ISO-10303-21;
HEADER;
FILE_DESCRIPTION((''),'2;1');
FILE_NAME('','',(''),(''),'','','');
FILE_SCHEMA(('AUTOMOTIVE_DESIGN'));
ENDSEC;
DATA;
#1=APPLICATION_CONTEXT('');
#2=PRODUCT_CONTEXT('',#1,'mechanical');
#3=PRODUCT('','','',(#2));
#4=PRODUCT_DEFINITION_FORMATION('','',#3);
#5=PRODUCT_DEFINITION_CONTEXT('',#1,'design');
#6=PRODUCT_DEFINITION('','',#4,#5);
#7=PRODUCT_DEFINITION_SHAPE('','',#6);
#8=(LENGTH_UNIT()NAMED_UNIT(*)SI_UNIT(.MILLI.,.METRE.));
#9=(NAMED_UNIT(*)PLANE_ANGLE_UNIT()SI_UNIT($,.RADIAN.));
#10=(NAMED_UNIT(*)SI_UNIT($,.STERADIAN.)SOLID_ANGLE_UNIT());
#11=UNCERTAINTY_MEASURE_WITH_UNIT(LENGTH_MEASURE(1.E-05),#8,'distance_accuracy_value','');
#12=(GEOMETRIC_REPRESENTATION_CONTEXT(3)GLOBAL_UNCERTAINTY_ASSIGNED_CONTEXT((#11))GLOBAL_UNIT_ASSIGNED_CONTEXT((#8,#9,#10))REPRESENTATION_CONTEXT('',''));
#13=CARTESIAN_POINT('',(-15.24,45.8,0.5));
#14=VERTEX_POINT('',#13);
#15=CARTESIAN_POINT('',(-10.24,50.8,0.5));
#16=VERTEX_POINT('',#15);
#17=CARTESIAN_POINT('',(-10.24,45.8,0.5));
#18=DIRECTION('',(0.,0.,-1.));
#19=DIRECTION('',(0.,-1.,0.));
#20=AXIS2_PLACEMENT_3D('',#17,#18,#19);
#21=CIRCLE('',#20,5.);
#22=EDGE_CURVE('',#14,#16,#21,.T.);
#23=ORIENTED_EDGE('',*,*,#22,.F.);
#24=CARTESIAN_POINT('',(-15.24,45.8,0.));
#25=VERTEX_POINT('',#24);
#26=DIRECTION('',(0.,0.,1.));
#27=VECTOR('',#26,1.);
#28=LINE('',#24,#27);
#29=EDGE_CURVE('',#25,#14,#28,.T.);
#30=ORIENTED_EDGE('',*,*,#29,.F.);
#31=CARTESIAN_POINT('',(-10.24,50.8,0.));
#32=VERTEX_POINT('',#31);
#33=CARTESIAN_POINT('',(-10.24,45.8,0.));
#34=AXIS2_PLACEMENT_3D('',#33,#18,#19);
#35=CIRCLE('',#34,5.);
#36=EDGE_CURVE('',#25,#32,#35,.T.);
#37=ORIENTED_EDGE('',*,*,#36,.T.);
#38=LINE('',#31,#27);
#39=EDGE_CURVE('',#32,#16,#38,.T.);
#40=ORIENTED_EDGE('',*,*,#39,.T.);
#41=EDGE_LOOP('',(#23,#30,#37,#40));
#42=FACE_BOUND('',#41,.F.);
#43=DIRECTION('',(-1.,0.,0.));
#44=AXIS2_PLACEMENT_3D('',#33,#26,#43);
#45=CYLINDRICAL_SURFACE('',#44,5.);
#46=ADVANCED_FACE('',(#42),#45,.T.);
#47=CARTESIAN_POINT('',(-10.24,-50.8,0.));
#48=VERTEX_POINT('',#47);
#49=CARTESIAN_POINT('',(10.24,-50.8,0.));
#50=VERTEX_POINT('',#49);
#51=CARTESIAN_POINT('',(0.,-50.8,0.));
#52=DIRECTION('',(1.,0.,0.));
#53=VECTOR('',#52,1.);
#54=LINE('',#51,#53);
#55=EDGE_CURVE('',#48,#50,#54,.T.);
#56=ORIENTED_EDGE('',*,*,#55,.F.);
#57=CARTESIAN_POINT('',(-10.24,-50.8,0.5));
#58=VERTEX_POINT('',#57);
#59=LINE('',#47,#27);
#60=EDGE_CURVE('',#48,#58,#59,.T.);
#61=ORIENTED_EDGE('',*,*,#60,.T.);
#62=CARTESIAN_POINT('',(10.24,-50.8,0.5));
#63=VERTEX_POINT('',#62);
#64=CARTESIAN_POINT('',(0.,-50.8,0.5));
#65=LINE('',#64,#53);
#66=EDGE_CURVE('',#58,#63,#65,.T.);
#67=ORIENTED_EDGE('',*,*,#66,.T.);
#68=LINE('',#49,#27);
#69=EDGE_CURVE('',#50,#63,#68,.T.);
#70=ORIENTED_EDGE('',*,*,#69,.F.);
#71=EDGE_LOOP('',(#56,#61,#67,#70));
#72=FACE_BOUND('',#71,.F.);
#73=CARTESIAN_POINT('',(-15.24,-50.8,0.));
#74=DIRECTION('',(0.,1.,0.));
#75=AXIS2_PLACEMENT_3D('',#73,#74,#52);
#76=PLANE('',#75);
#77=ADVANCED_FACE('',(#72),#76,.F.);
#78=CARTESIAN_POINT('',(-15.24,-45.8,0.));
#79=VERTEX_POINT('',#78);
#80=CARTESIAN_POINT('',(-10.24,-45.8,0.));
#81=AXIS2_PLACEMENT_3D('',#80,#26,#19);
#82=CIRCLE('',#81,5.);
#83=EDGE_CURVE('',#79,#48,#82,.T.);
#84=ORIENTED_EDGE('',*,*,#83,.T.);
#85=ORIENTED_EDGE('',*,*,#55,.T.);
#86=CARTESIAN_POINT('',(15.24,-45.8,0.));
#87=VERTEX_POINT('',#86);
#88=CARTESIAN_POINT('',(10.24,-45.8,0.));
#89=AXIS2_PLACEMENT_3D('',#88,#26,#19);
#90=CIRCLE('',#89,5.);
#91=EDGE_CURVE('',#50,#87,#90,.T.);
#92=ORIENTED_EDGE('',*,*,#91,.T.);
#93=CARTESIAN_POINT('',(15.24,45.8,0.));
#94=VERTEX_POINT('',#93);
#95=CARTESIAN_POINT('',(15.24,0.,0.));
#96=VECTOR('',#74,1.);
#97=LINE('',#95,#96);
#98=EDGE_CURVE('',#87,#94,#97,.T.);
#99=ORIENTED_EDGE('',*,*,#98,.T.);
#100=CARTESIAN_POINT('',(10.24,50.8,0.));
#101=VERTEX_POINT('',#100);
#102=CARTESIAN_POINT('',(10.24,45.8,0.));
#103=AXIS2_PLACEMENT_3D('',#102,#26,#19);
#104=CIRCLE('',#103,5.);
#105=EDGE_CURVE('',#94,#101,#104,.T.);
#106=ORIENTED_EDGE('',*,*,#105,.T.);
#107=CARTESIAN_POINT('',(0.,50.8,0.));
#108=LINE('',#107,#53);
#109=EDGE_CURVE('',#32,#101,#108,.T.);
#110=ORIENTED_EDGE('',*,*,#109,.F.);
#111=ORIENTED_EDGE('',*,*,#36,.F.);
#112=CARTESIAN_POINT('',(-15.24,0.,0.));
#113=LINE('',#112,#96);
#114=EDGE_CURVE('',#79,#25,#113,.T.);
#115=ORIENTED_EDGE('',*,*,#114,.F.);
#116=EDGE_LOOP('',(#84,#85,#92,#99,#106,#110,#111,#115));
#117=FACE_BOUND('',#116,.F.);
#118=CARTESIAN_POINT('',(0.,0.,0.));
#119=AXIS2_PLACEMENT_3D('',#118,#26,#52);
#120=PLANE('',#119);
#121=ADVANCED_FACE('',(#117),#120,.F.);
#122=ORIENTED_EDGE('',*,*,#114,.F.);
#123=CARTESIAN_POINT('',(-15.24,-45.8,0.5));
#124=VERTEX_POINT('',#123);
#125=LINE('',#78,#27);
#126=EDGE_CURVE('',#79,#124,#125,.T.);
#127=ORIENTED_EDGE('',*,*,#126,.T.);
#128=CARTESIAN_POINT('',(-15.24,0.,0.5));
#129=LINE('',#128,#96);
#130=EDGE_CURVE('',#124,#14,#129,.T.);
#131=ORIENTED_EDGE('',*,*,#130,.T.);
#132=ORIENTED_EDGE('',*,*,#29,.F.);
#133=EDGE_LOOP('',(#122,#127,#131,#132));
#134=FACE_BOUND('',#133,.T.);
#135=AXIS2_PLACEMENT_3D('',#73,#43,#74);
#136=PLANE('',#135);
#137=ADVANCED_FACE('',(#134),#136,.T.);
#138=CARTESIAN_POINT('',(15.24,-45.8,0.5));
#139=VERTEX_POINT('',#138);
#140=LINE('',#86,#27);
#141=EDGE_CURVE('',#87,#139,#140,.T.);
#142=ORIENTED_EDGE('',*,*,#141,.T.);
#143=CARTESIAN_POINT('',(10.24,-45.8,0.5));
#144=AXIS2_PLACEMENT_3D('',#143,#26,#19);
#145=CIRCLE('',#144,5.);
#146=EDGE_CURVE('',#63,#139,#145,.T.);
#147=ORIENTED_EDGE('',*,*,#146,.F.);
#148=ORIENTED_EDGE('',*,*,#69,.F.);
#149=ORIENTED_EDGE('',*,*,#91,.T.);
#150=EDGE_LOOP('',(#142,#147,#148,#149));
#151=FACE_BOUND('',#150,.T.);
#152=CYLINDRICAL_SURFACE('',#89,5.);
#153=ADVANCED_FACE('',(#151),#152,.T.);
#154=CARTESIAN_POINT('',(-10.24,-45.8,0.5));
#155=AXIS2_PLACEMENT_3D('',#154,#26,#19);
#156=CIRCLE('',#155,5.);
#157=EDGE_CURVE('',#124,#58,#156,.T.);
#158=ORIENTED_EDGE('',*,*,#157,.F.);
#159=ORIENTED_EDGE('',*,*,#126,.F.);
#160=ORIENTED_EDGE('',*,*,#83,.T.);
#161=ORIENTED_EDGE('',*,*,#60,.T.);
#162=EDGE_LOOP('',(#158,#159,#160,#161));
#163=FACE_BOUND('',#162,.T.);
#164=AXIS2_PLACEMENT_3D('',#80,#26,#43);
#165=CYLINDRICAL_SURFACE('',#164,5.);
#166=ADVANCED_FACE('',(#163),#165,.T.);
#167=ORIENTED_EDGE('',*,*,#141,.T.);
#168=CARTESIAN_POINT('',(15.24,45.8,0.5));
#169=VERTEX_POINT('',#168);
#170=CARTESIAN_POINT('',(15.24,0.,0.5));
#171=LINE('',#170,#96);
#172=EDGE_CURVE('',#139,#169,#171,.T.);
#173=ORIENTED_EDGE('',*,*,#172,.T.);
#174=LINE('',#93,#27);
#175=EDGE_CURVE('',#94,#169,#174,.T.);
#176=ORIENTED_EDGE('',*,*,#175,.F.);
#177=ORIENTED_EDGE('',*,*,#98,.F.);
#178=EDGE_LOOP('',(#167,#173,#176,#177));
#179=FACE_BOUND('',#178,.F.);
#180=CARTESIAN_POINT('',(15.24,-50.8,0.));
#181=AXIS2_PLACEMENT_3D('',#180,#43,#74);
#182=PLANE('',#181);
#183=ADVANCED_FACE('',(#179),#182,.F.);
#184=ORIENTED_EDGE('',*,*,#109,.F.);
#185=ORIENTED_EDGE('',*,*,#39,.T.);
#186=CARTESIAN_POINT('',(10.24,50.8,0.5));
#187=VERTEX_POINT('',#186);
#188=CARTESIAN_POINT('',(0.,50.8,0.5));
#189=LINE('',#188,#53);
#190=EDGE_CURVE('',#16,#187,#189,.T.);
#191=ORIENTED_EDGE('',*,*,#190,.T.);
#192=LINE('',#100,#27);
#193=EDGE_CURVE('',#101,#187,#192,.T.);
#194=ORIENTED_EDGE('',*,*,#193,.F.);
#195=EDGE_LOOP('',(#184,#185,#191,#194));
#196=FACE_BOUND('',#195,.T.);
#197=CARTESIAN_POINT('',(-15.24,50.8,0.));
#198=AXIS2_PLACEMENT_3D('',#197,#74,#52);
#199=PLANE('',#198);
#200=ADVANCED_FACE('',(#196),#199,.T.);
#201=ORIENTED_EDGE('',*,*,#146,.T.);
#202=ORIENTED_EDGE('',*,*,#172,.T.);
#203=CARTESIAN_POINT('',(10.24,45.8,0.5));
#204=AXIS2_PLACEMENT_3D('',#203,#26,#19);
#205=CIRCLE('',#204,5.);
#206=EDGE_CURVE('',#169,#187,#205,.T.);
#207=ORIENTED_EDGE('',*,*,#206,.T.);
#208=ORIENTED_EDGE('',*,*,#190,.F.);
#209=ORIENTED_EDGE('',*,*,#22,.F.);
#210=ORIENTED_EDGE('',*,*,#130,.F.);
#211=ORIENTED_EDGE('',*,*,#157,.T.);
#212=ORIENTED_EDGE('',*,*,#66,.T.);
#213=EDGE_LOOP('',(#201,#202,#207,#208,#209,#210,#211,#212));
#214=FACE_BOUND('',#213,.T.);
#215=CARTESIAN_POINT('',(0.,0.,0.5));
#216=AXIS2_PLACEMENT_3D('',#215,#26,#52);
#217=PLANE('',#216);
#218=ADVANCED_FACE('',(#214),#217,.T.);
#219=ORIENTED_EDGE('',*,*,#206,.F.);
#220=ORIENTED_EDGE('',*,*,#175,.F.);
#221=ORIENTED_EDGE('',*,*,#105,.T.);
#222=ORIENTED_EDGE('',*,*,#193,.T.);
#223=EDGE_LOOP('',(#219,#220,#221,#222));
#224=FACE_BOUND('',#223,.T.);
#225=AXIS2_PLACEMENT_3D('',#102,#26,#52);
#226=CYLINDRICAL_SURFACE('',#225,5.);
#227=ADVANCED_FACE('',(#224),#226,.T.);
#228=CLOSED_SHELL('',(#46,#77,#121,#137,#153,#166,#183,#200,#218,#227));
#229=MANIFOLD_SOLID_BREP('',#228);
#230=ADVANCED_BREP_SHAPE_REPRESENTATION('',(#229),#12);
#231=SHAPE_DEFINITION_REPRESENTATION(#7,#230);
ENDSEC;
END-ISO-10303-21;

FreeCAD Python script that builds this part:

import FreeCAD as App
import Part
import Sketcher
from FreeCAD import Vector


def edges_at(feature, points):
    """Names of the edges that pass closest to the given points."""
    edges = feature.Shape.Edges
    near = lambda p: min(range(len(edges)), key=lambda i: edges[i].distToShape(Part.Vertex(*p))[0])
    return sorted({f"Edge{near(p) + 1}" for p in points})

doc = App.newDocument("Part")
body = doc.addObject("PartDesign::Body", "Body")

# Sketch on XY plane
sketch1 = body.newObject("Sketcher::SketchObject", "Sketch")
sketch1.AttachmentSupport = (doc.getObject("XY_Plane"), [""])
sketch1.MapMode = "FlatFace"
sketch1.addGeometry(Part.LineSegment(Vector(-15.24, 50.8, 0), Vector(-15.24, -50.8, 0)), False)
sketch1.addGeometry(Part.LineSegment(Vector(-15.24, -50.8, 0), Vector(15.24, -50.8, 0)), False)
sketch1.addGeometry(Part.LineSegment(Vector(15.24, -50.8, 0), Vector(15.24, 50.8, 0)), False)
sketch1.addGeometry(Part.LineSegment(Vector(15.24, 50.8, 0), Vector(-15.24, 50.8, 0)), False)
sketch1.addConstraint(Sketcher.Constraint("Coincident", 0, 2, 1, 1))
sketch1.addConstraint(Sketcher.Constraint("Coincident", 1, 2, 2, 1))
sketch1.addConstraint(Sketcher.Constraint("Coincident", 2, 2, 3, 1))
sketch1.addConstraint(Sketcher.Constraint("Coincident", 3, 2, 0, 1))
sketch1.addConstraint(Sketcher.Constraint("Vertical", 0))
sketch1.addConstraint(Sketcher.Constraint("Horizontal", 1))
sketch1.addConstraint(Sketcher.Constraint("Vertical", 2))
sketch1.addConstraint(Sketcher.Constraint("Horizontal", 3))
sketch1.addConstraint(Sketcher.Constraint("Symmetric", 0, 2, 2, 2, -1, 1))
sketch1.addConstraint(Sketcher.Constraint("DistanceY", 0, 2, 0, 1, 101.6))
sketch1.addConstraint(Sketcher.Constraint("DistanceX", 1, 1, 1, 2, 30.48))
pad1 = body.newObject("PartDesign::Pad", "Pad")
pad1.Profile = sketch1
pad1.Length = 0.5
doc.recompute()

fillet = body.newObject("PartDesign::Fillet", "Fillet")
fillet.Base = (pad1, edges_at(pad1, [
    (15.24, -50.8, 0.25),
    (-15.24, -50.8, 0.25),
    (-15.24, 50.8, 0.25),
    (15.24, 50.8, 0.25),
]))
fillet.Radius = 5
body2 = doc.addObject("PartDesign::Body", "Body001")

# Sketch on XY plane
sketch2 = body2.newObject("Sketcher::SketchObject", "Sketch001")
sketch2.AttachmentSupport = (doc.getObject("XY_Plane001"), [""])
sketch2.MapMode = "FlatFace"
sketch2.AttachmentOffset = App.Placement(Vector(0, 0, 25.5), App.Rotation())
sketch2.addGeometry(Part.Circle(Vector(0, 0, 0), Vector(0, 0, 1), 12.6), False)
sketch2.addConstraint(Sketcher.Constraint("Coincident", 0, 3, -1, 1))
sketch2.addConstraint(Sketcher.Constraint("Diameter", 0, 25.2))
pad2 = body2.newObject("PartDesign::Pad", "Pad001")
pad2.Profile = sketch2
pad2.Length = 0.5
body2.Visibility = False

doc.recompute()
